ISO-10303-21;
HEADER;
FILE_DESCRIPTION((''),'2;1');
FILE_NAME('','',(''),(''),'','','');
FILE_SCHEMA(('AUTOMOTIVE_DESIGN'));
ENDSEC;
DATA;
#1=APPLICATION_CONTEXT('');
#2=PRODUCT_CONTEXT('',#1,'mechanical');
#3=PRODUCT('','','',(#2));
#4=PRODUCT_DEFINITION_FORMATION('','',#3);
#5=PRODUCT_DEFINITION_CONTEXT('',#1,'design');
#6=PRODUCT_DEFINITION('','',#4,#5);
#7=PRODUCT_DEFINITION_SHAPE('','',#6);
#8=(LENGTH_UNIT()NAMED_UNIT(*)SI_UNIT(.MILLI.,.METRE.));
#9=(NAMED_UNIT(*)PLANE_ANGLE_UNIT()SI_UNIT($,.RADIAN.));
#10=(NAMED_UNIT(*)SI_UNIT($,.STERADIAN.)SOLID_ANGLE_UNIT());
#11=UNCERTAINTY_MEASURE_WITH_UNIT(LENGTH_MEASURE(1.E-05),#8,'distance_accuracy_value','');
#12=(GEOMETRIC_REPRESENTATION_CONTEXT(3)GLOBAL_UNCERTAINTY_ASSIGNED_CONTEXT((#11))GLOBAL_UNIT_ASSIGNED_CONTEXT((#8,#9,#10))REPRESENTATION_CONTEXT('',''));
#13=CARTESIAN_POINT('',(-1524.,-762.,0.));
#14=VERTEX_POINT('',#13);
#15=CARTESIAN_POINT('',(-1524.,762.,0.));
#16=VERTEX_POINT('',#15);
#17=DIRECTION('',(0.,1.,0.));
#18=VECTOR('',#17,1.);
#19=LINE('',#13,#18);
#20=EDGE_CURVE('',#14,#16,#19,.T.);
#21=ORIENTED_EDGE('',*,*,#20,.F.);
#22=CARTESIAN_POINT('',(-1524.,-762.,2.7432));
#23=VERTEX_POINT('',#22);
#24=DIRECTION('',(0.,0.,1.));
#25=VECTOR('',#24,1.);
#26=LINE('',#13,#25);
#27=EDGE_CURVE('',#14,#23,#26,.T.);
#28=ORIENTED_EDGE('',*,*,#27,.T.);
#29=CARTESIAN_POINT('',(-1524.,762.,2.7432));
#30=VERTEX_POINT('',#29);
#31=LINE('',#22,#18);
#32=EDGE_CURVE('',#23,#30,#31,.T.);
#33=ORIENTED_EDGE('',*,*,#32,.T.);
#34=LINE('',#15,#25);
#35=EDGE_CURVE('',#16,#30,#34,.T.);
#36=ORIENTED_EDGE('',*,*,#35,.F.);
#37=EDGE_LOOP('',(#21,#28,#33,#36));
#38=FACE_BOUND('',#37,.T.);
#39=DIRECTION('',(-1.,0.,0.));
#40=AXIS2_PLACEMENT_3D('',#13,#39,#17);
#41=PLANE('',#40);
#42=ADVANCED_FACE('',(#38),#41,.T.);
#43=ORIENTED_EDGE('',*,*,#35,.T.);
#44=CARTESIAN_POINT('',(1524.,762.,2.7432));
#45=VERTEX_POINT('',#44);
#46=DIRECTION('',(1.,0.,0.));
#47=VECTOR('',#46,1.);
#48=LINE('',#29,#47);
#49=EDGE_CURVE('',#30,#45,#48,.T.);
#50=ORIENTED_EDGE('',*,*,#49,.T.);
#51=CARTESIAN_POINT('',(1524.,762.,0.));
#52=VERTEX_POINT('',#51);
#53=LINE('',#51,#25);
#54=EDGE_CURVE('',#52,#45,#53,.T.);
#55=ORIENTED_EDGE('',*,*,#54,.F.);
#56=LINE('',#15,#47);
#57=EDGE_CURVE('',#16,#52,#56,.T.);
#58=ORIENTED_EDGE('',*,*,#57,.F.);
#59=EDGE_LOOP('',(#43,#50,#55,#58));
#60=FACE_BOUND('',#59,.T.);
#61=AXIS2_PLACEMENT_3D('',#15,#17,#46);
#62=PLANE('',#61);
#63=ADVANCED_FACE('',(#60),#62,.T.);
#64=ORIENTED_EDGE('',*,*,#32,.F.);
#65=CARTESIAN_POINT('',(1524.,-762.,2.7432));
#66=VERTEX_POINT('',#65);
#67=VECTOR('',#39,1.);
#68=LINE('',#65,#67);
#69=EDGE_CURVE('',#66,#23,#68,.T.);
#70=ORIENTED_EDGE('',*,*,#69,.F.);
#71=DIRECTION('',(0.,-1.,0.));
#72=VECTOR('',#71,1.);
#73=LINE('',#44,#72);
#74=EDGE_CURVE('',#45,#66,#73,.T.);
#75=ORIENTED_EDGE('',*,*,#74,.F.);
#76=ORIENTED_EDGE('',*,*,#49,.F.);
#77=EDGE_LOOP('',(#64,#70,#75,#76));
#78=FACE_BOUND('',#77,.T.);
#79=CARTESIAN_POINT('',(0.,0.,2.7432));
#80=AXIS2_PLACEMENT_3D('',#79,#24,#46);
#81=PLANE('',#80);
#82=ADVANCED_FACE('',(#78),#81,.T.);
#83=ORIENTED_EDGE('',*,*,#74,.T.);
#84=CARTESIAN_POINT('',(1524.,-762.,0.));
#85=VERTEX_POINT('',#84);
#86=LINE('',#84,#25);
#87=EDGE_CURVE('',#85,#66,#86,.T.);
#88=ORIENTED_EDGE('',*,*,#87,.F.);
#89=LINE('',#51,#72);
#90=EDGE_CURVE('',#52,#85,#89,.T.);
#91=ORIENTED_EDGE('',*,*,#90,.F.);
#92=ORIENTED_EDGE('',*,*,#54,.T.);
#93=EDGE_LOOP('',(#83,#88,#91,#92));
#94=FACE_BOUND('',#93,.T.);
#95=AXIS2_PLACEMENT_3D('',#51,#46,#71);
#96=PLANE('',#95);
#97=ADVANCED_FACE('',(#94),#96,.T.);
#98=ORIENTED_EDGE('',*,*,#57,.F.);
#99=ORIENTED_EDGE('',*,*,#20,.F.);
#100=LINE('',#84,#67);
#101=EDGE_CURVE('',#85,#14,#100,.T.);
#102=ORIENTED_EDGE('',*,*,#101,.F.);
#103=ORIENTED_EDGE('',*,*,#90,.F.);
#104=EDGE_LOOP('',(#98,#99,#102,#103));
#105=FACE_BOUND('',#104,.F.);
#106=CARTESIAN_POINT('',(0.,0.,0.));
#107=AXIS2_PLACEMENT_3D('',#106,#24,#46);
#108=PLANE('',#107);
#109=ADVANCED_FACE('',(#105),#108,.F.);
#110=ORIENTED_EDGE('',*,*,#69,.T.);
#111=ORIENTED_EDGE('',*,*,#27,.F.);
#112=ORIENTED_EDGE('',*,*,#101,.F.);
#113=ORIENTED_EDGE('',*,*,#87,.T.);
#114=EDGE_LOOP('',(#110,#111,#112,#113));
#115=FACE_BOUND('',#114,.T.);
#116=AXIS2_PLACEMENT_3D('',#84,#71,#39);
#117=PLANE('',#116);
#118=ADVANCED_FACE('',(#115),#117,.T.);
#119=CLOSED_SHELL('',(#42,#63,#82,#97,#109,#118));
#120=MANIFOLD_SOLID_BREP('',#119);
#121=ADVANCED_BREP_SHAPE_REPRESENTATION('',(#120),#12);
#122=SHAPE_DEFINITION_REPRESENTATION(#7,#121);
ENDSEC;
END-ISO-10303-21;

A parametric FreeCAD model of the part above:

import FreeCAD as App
import Part
import Sketcher
from FreeCAD import Vector
Q = App.Units.Quantity


def add_polygon(sketch, points):
    """Adds a closed chain of lines whose ends are joined by coincident constraints."""
    first, n = sketch.GeometryCount, len(points)
    for a, b in zip(points, points[1:] + points[:1]):
        sketch.addGeometry(Part.LineSegment(App.Vector(*a, 0), App.Vector(*b, 0)), False)
    for i in range(n):
        sketch.addConstraint(Sketcher.Constraint("Coincident", first + i, 2, first + (i + 1) % n, 1))

doc = App.newDocument("Part")
body = doc.addObject("PartDesign::Body", "Body")

# Sketch on XY plane
sketch1 = body.newObject("Sketcher::SketchObject", "Sketch")
sketch1.AttachmentSupport = (doc.getObject("XY_Plane"), [""])
sketch1.MapMode = "FlatFace"
add_polygon(sketch1, [(-1524, -762), (1524, -762), (1524, 762), (-1524, 762)])  # lines 0-3
sketch1.addConstraint([
    Sketcher.Constraint("Horizontal", 0),
    Sketcher.Constraint("Vertical", 1),
    Sketcher.Constraint("Horizontal", 2),
    Sketcher.Constraint("Vertical", 3),
    Sketcher.Constraint("Symmetric", 0, 2, 2, 2, -1, 1),
    Sketcher.Constraint("DistanceX", 0, 1, 0, 2, Q("120 in")),
    Sketcher.Constraint("DistanceY", 1, 1, 1, 2, Q("60 in")),
])
pad1 = body.newObject("PartDesign::Pad", "Pad")
pad1.Profile = sketch1
pad1.Length = Q("0.108 in")

doc.recompute()
